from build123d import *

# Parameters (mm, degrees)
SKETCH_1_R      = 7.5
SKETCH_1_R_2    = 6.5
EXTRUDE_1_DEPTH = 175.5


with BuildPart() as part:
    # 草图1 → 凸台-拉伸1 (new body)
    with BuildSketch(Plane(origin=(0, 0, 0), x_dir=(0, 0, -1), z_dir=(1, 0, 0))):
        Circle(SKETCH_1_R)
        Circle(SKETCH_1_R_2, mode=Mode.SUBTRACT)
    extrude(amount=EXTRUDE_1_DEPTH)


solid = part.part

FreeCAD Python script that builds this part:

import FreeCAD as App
import Part
import Sketcher

doc = App.newDocument("Part")
params = doc.addObject("Spreadsheet::Sheet", "Params")
for row, (alias, value) in enumerate([
    ("sketch1_diameter", "15 mm"),
    ("sketch1_diameter2", "13 mm"),
    ("pad1_length", "175.5 mm"),
], start=1):
    params.set(f"A{row}", alias)
    params.set(f"B{row}", "=" + value)
    params.setAlias(f"B{row}", alias)

body = doc.addObject("PartDesign::Body", "Body")

# Sketch on YZ plane
sketch1 = body.newObject("Sketcher::SketchObject", "Sketch")
sketch1.AttachmentSupport = (doc.getObject("YZ_Plane"), [""])
sketch1.MapMode = "FlatFace"
sketch1.addGeometry([
    Part.Circle(App.Vector(0, 0, 0), App.Vector(0, 0, 1), 8),
    Part.Circle(App.Vector(0, 0, 0), App.Vector(0, 0, 1), 6),
], False)
sketch1.addConstraint([
    Sketcher.Constraint("Coincident", 0, 3, -1, 1),
    Sketcher.Constraint("Coincident", 1, 3, -1, 1),
    Sketcher.Constraint("Diameter", 0, 15.0),
    Sketcher.Constraint("Diameter", 1, 13.0),
])
sketch1.setExpression("Constraints[2]", "Params.sketch1_diameter")
sketch1.setExpression("Constraints[3]", "Params.sketch1_diameter2")
pad1 = body.newObject("PartDesign::Pad", "Pad")
pad1.Profile = sketch1
pad1.setExpression("Length", "Params.pad1_length")

doc.recompute()
